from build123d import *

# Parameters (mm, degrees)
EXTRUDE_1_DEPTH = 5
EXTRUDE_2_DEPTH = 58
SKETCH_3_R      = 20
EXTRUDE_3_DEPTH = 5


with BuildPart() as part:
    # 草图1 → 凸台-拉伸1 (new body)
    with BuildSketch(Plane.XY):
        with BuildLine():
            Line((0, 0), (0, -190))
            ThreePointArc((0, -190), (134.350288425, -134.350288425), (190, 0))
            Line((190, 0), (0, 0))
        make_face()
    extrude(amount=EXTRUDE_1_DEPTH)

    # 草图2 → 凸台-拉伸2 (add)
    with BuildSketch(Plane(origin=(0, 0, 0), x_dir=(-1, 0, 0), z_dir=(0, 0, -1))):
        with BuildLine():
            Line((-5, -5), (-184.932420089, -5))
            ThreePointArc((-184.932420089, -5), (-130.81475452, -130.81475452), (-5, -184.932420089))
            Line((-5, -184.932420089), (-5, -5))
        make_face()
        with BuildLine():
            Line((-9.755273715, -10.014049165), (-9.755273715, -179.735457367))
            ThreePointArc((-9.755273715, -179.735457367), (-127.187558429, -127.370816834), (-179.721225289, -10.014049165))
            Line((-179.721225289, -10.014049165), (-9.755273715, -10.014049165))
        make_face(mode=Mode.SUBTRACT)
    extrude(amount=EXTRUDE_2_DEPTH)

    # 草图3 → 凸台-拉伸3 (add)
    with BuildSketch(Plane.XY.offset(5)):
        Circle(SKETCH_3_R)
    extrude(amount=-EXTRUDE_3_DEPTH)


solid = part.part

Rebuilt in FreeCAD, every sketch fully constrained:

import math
import FreeCAD as App
import Part
import Sketcher
from FreeCAD import Vector

doc = App.newDocument("Part")
body = doc.addObject("PartDesign::Body", "Body")

# Sketch on XY plane
sketch1 = body.newObject("Sketcher::SketchObject", "Sketch")
sketch1.AttachmentSupport = (doc.getObject("XY_Plane"), [""])
sketch1.MapMode = "FlatFace"
sketch1.addGeometry(Part.LineSegment(Vector(0, 0, 0), Vector(0, -190, 0)), False)
sketch1.addGeometry(Part.ArcOfCircle(Part.Circle(Vector(0, 0, 0), Vector(0, 0, 1), 190), math.radians(-90), math.radians(0)), False)
sketch1.addGeometry(Part.LineSegment(Vector(190, 0, 0), Vector(0, 0, 0)), False)
sketch1.addConstraint(Sketcher.Constraint("Coincident", 0, 2, 1, 1))
sketch1.addConstraint(Sketcher.Constraint("Coincident", 1, 2, 2, 1))
sketch1.addConstraint(Sketcher.Constraint("Coincident", 2, 2, 0, 1))
sketch1.addConstraint(Sketcher.Constraint("Vertical", 0))
sketch1.addConstraint(Sketcher.Constraint("Horizontal", 2))
sketch1.addConstraint(Sketcher.Constraint("Coincident", 1, 3, -1, 1))
sketch1.addConstraint(Sketcher.Constraint("Coincident", 2, 2, -1, 1))
sketch1.addConstraint(Sketcher.Constraint("Radius", 1, 190.0))
pad1 = body.newObject("PartDesign::Pad", "Pad")
pad1.Profile = sketch1
pad1.Length = 5

# Sketch on XY plane
sketch2 = body.newObject("Sketcher::SketchObject", "Sketch001")
sketch2.AttachmentSupport = (doc.getObject("XY_Plane"), [""])
sketch2.MapMode = "FlatFace"
sketch2.addGeometry(Part.LineSegment(Vector(5, -5, 0), Vector(185, -5, 0)), False)
sketch2.addGeometry(Part.ArcOfCircle(Part.Circle(Vector(0, 0, 0), Vector(0, 0, 1), 185), math.radians(-88), math.radians(-2)), False)
sketch2.addGeometry(Part.LineSegment(Vector(5, -185, 0), Vector(5, -5, 0)), False)
sketch2.addGeometry(Part.LineSegment(Vector(180, -10, 0), Vector(10, -10, 0)), False)
sketch2.addGeometry(Part.LineSegment(Vector(10, -10, 0), Vector(10, -180, 0)), False)
sketch2.addGeometry(Part.ArcOfCircle(Part.Circle(Vector(0, 0, 0), Vector(0, 0, 1), 180), math.radians(-87), math.radians(-3)), False)
sketch2.addConstraint(Sketcher.Constraint("Coincident", 0, 2, 1, 2))
sketch2.addConstraint(Sketcher.Constraint("Coincident", 1, 1, 2, 1))
sketch2.addConstraint(Sketcher.Constraint("Coincident", 2, 2, 0, 1))
sketch2.addConstraint(Sketcher.Constraint("Coincident", 3, 2, 4, 1))
sketch2.addConstraint(Sketcher.Constraint("Coincident", 4, 2, 5, 1))
sketch2.addConstraint(Sketcher.Constraint("Coincident", 5, 2, 3, 1))
sketch2.addConstraint(Sketcher.Constraint("Horizontal", 0))
sketch2.addConstraint(Sketcher.Constraint("Vertical", 2))
sketch2.addConstraint(Sketcher.Constraint("Horizontal", 3))
sketch2.addConstraint(Sketcher.Constraint("Vertical", 4))
sketch2.addConstraint(Sketcher.Constraint("Coincident", 1, 3, -1, 1))
sketch2.addConstraint(Sketcher.Constraint("Coincident", 5, 3, -1, 1))
sketch2.addConstraint(Sketcher.Constraint("Equal", 0, 2))
sketch2.addConstraint(Sketcher.Constraint("Radius", 1, 185.0))
sketch2.addConstraint(Sketcher.Constraint("Radius", 5, 180.0))
sketch2.addConstraint(Sketcher.Constraint("DistanceY", 0, 2, -1, 1, 5.0))
sketch2.addConstraint(Sketcher.Constraint("DistanceX", 3, 2, 3, 1, 169.965952))
sketch2.addConstraint(Sketcher.Constraint("DistanceY", 4, 2, 4, 1, 169.721408))
pad2 = body.newObject("PartDesign::Pad", "Pad001")
pad2.Profile = sketch2
pad2.Length = 58
pad2.Reversed = True

# Sketch on XY plane
sketch3 = body.newObject("Sketcher::SketchObject", "Sketch002")
sketch3.AttachmentSupport = (doc.getObject("XY_Plane"), [""])
sketch3.MapMode = "FlatFace"
sketch3.AttachmentOffset = App.Placement(Vector(0, 0, 5), App.Rotation())
sketch3.addGeometry(Part.Circle(Vector(0, 0, 0), Vector(0, 0, 1), 20), False)
sketch3.addConstraint(Sketcher.Constraint("Coincident", 0, 3, -1, 1))
sketch3.addConstraint(Sketcher.Constraint("Diameter", 0, 40.0))
pad3 = body.newObject("PartDesign::Pad", "Pad002")
pad3.Profile = sketch3
pad3.Length = 5
pad3.Reversed = True

doc.recompute()
